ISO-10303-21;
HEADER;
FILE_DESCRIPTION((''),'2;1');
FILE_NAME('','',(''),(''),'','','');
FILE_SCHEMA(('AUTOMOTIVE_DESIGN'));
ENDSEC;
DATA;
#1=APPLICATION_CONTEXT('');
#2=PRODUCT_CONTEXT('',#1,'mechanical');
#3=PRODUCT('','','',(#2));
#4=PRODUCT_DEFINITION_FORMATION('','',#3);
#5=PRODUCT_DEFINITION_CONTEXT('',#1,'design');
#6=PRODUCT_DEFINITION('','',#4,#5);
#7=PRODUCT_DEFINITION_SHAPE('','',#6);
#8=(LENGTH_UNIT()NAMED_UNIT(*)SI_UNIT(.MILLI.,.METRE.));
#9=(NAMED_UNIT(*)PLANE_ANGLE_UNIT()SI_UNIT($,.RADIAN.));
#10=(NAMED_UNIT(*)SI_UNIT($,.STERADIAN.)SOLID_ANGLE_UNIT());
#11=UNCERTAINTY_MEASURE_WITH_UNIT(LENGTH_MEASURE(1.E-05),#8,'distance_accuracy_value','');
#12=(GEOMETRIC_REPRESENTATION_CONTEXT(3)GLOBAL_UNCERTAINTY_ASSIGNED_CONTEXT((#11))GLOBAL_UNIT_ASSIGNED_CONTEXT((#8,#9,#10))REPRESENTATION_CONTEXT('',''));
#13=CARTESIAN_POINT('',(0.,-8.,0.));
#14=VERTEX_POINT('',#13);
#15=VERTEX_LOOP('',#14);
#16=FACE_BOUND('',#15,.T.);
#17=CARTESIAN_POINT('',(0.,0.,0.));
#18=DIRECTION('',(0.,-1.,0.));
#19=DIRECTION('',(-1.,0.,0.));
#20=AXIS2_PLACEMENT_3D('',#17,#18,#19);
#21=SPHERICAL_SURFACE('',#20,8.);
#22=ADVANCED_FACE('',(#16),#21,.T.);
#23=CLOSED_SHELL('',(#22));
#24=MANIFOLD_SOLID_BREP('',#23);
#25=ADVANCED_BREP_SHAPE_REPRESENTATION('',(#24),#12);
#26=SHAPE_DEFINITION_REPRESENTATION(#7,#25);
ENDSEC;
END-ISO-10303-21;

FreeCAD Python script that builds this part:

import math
import FreeCAD as App
import Part
import Sketcher

V = App.Vector
Q = App.Units.Quantity

doc = App.newDocument("Part")
body = doc.addObject("PartDesign::Body", "Body")

# Sketch on XY plane
sketch1 = body.newObject("Sketcher::SketchObject", "Sketch")
sketch1.AttachmentSupport = (doc.getObject("XY_Plane"), [""])
sketch1.MapMode = "FlatFace"
sketch1.addGeometry([
    Part.LineSegment(V(0, -8, 0), V(0, 8, 0)),
    Part.ArcOfCircle(Part.Circle(V(0, 0, 0), V(0, 0, 1), 8), math.radians(90), math.radians(270)),
], False)
sketch1.addConstraint([
    Sketcher.Constraint("Coincident", 0, 1, 1, 2),
    Sketcher.Constraint("Coincident", 1, 1, 0, 2),
    Sketcher.Constraint("Vertical", 0),
    Sketcher.Constraint("Coincident", 1, 3, -1, 1),
    Sketcher.Constraint("PointOnObject", 0, 1, -2),
    Sketcher.Constraint("Radius", 1, Q("8 mm")),
])
revolution = body.newObject("PartDesign::Revolution", "Revolution")
revolution.Profile = sketch1
revolution.ReferenceAxis = (sketch1, ["V_Axis"])
revolution.Angle = 360

doc.recompute()
